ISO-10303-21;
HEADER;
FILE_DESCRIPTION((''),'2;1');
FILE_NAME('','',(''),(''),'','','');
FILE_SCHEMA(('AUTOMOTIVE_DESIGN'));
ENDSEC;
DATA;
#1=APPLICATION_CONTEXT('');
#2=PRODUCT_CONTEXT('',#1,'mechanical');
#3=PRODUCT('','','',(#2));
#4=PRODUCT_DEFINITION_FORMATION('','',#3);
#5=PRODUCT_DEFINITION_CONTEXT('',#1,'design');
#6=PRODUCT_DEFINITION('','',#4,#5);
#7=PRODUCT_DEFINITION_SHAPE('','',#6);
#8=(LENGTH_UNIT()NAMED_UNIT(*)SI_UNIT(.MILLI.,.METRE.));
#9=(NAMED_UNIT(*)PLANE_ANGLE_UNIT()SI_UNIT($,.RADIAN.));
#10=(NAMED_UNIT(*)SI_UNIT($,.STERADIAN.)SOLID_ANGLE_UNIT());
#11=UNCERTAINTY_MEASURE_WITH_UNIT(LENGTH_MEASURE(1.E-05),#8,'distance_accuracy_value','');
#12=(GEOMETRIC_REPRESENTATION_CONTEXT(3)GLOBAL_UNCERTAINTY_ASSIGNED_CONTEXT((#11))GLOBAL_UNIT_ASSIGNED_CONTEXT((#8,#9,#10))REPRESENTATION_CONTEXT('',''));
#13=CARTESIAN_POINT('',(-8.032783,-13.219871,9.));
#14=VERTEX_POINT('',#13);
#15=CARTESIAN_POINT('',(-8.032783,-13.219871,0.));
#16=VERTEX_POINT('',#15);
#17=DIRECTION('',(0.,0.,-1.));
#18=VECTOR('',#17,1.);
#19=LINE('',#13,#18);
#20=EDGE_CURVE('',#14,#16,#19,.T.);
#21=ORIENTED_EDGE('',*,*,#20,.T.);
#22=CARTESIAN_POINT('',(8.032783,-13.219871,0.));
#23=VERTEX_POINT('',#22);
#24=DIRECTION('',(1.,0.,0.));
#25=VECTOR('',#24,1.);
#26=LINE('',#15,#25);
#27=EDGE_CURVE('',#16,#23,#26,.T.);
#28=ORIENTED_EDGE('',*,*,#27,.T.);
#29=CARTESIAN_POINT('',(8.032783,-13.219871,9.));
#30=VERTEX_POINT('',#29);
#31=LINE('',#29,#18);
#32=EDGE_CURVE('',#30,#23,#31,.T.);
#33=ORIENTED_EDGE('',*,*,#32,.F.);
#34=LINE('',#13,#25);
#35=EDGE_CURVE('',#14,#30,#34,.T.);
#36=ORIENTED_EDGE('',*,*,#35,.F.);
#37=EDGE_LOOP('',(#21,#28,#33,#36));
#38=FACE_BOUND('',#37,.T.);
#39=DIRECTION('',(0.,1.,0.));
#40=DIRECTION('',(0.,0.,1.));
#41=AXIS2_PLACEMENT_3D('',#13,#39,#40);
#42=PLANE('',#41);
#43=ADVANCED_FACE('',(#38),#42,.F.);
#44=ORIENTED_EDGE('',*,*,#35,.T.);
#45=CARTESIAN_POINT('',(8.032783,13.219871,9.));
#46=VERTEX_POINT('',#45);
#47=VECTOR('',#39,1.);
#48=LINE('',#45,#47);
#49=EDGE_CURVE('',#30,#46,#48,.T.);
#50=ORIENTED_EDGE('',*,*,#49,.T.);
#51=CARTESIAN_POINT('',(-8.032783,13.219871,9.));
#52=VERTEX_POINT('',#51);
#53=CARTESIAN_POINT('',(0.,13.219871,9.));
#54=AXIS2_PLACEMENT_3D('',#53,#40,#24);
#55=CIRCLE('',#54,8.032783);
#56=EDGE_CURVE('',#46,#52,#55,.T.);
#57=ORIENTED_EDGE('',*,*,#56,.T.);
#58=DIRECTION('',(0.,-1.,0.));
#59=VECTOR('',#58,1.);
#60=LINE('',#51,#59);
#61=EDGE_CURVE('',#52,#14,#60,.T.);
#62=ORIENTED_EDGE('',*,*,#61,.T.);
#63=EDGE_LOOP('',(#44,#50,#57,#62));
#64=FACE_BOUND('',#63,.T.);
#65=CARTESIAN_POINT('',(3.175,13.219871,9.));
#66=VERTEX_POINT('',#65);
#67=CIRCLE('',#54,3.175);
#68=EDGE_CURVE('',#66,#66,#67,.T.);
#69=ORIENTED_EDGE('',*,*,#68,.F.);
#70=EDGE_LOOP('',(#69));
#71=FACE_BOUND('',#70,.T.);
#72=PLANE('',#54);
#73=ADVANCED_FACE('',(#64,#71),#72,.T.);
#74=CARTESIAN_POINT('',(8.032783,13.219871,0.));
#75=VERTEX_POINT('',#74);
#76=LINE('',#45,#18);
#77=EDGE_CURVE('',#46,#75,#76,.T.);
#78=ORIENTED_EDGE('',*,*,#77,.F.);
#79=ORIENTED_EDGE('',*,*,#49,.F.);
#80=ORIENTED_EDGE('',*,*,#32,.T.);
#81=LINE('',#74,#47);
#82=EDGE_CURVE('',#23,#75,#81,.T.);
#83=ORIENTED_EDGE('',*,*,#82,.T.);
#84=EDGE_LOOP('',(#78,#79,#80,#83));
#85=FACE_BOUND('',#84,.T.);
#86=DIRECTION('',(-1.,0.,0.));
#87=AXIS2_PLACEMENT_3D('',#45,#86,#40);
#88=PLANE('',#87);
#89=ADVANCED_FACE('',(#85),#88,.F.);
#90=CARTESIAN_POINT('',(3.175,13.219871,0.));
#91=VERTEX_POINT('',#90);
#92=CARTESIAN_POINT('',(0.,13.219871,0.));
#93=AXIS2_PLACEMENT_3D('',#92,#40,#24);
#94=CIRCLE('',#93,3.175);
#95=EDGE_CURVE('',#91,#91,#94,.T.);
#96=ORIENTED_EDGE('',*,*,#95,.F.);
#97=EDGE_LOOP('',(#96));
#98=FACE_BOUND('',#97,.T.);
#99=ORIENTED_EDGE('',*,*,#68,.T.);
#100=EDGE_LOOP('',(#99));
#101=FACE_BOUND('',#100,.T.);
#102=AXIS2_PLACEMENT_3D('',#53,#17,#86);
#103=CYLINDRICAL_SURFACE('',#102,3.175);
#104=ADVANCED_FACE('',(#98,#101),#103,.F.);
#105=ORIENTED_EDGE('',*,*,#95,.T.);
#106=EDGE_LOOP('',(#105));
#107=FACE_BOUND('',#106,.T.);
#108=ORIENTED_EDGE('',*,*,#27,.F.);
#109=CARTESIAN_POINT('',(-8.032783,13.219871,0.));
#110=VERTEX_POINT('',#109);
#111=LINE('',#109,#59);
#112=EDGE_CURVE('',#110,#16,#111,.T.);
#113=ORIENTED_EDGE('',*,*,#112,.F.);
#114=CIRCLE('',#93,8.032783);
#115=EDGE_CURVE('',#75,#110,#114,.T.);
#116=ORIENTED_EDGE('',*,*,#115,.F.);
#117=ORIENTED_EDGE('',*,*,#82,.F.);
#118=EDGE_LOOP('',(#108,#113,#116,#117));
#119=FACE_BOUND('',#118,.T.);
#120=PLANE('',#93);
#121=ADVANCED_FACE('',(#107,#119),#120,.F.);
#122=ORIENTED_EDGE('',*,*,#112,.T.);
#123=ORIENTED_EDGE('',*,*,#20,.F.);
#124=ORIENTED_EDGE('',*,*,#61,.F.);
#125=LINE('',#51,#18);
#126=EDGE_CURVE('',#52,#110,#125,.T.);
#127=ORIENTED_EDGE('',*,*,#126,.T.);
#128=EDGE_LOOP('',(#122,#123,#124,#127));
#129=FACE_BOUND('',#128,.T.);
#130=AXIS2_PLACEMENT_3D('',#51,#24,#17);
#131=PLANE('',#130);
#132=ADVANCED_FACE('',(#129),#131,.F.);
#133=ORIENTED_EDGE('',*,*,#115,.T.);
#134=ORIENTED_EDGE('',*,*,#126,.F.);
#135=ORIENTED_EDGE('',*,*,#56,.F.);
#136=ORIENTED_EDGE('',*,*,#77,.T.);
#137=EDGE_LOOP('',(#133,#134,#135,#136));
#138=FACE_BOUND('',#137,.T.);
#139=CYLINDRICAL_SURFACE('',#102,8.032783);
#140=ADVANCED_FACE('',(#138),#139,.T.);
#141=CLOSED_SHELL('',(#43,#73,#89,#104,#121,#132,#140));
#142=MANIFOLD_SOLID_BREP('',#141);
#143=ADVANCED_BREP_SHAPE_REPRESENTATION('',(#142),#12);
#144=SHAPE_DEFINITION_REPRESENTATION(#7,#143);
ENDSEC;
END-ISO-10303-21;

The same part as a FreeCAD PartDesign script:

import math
import FreeCAD as App
import Part
import Sketcher

V = App.Vector
Q = App.Units.Quantity

doc = App.newDocument("Part")
body = doc.addObject("PartDesign::Body", "Body")

# Sketch on XY plane
sketch1 = doc.addObject("Sketcher::SketchObject", "Sketch")
body.addObject(sketch1)
sketch1.AttachmentSupport = (doc.XY_Plane, [""])
sketch1.MapMode = "FlatFace"
sketch1.addGeometry([
    Part.LineSegment(V(-8, 13.2, 0), V(-8, -13.2, 0)),  # 0
    Part.LineSegment(V(-8, -13.2, 0), V(8, -13.2, 0)),  # 1
    Part.LineSegment(V(8, -13.2, 0), V(8, 13.2, 0)),  # 2
    Part.ArcOfCircle(Part.Circle(V(0, 13.2, 0), V(0, 0, 1), 8), math.radians(0), math.radians(90)),  # 3
    Part.ArcOfCircle(Part.Circle(V(0, 13.2, 0), V(0, 0, 1), 8), math.radians(90), math.radians(180)),  # 4
    Part.Circle(V(0, 13.2, 0), V(0, 0, 1), 3.2),  # 5
], False)
sketch1.addConstraint([
    Sketcher.Constraint("Coincident", 0, 2, 1, 1),
    Sketcher.Constraint("Coincident", 1, 2, 2, 1),
    Sketcher.Constraint("Tangent", 2, 2, 3, 1),
    Sketcher.Constraint("Tangent", 3, 2, 4, 1),
    Sketcher.Constraint("Tangent", 4, 2, 0, 1),
    Sketcher.Constraint("Vertical", 0),
    Sketcher.Constraint("Horizontal", 1),
    Sketcher.Constraint("Vertical", 2),
    Sketcher.Constraint("Coincident", 5, 3, 3, 3),
    Sketcher.Constraint("Equal", 3, 4),
    Sketcher.Constraint("Symmetric", 0, 2, 2, 2, -1, 1),
    Sketcher.Constraint("PointOnObject", 3, 2, -2),
    Sketcher.Constraint("Diameter", 5, Q("6.35 mm")),
    Sketcher.Constraint("Radius", 3, Q("8.032783 mm")),
    Sketcher.Constraint("DistanceY", 0, 2, 0, 1, Q("26.439743 mm")),
])
pad1 = doc.addObject("PartDesign::Pad", "Pad")
body.addObject(pad1)
pad1.Profile = sketch1
pad1.Length = 9

doc.recompute()
